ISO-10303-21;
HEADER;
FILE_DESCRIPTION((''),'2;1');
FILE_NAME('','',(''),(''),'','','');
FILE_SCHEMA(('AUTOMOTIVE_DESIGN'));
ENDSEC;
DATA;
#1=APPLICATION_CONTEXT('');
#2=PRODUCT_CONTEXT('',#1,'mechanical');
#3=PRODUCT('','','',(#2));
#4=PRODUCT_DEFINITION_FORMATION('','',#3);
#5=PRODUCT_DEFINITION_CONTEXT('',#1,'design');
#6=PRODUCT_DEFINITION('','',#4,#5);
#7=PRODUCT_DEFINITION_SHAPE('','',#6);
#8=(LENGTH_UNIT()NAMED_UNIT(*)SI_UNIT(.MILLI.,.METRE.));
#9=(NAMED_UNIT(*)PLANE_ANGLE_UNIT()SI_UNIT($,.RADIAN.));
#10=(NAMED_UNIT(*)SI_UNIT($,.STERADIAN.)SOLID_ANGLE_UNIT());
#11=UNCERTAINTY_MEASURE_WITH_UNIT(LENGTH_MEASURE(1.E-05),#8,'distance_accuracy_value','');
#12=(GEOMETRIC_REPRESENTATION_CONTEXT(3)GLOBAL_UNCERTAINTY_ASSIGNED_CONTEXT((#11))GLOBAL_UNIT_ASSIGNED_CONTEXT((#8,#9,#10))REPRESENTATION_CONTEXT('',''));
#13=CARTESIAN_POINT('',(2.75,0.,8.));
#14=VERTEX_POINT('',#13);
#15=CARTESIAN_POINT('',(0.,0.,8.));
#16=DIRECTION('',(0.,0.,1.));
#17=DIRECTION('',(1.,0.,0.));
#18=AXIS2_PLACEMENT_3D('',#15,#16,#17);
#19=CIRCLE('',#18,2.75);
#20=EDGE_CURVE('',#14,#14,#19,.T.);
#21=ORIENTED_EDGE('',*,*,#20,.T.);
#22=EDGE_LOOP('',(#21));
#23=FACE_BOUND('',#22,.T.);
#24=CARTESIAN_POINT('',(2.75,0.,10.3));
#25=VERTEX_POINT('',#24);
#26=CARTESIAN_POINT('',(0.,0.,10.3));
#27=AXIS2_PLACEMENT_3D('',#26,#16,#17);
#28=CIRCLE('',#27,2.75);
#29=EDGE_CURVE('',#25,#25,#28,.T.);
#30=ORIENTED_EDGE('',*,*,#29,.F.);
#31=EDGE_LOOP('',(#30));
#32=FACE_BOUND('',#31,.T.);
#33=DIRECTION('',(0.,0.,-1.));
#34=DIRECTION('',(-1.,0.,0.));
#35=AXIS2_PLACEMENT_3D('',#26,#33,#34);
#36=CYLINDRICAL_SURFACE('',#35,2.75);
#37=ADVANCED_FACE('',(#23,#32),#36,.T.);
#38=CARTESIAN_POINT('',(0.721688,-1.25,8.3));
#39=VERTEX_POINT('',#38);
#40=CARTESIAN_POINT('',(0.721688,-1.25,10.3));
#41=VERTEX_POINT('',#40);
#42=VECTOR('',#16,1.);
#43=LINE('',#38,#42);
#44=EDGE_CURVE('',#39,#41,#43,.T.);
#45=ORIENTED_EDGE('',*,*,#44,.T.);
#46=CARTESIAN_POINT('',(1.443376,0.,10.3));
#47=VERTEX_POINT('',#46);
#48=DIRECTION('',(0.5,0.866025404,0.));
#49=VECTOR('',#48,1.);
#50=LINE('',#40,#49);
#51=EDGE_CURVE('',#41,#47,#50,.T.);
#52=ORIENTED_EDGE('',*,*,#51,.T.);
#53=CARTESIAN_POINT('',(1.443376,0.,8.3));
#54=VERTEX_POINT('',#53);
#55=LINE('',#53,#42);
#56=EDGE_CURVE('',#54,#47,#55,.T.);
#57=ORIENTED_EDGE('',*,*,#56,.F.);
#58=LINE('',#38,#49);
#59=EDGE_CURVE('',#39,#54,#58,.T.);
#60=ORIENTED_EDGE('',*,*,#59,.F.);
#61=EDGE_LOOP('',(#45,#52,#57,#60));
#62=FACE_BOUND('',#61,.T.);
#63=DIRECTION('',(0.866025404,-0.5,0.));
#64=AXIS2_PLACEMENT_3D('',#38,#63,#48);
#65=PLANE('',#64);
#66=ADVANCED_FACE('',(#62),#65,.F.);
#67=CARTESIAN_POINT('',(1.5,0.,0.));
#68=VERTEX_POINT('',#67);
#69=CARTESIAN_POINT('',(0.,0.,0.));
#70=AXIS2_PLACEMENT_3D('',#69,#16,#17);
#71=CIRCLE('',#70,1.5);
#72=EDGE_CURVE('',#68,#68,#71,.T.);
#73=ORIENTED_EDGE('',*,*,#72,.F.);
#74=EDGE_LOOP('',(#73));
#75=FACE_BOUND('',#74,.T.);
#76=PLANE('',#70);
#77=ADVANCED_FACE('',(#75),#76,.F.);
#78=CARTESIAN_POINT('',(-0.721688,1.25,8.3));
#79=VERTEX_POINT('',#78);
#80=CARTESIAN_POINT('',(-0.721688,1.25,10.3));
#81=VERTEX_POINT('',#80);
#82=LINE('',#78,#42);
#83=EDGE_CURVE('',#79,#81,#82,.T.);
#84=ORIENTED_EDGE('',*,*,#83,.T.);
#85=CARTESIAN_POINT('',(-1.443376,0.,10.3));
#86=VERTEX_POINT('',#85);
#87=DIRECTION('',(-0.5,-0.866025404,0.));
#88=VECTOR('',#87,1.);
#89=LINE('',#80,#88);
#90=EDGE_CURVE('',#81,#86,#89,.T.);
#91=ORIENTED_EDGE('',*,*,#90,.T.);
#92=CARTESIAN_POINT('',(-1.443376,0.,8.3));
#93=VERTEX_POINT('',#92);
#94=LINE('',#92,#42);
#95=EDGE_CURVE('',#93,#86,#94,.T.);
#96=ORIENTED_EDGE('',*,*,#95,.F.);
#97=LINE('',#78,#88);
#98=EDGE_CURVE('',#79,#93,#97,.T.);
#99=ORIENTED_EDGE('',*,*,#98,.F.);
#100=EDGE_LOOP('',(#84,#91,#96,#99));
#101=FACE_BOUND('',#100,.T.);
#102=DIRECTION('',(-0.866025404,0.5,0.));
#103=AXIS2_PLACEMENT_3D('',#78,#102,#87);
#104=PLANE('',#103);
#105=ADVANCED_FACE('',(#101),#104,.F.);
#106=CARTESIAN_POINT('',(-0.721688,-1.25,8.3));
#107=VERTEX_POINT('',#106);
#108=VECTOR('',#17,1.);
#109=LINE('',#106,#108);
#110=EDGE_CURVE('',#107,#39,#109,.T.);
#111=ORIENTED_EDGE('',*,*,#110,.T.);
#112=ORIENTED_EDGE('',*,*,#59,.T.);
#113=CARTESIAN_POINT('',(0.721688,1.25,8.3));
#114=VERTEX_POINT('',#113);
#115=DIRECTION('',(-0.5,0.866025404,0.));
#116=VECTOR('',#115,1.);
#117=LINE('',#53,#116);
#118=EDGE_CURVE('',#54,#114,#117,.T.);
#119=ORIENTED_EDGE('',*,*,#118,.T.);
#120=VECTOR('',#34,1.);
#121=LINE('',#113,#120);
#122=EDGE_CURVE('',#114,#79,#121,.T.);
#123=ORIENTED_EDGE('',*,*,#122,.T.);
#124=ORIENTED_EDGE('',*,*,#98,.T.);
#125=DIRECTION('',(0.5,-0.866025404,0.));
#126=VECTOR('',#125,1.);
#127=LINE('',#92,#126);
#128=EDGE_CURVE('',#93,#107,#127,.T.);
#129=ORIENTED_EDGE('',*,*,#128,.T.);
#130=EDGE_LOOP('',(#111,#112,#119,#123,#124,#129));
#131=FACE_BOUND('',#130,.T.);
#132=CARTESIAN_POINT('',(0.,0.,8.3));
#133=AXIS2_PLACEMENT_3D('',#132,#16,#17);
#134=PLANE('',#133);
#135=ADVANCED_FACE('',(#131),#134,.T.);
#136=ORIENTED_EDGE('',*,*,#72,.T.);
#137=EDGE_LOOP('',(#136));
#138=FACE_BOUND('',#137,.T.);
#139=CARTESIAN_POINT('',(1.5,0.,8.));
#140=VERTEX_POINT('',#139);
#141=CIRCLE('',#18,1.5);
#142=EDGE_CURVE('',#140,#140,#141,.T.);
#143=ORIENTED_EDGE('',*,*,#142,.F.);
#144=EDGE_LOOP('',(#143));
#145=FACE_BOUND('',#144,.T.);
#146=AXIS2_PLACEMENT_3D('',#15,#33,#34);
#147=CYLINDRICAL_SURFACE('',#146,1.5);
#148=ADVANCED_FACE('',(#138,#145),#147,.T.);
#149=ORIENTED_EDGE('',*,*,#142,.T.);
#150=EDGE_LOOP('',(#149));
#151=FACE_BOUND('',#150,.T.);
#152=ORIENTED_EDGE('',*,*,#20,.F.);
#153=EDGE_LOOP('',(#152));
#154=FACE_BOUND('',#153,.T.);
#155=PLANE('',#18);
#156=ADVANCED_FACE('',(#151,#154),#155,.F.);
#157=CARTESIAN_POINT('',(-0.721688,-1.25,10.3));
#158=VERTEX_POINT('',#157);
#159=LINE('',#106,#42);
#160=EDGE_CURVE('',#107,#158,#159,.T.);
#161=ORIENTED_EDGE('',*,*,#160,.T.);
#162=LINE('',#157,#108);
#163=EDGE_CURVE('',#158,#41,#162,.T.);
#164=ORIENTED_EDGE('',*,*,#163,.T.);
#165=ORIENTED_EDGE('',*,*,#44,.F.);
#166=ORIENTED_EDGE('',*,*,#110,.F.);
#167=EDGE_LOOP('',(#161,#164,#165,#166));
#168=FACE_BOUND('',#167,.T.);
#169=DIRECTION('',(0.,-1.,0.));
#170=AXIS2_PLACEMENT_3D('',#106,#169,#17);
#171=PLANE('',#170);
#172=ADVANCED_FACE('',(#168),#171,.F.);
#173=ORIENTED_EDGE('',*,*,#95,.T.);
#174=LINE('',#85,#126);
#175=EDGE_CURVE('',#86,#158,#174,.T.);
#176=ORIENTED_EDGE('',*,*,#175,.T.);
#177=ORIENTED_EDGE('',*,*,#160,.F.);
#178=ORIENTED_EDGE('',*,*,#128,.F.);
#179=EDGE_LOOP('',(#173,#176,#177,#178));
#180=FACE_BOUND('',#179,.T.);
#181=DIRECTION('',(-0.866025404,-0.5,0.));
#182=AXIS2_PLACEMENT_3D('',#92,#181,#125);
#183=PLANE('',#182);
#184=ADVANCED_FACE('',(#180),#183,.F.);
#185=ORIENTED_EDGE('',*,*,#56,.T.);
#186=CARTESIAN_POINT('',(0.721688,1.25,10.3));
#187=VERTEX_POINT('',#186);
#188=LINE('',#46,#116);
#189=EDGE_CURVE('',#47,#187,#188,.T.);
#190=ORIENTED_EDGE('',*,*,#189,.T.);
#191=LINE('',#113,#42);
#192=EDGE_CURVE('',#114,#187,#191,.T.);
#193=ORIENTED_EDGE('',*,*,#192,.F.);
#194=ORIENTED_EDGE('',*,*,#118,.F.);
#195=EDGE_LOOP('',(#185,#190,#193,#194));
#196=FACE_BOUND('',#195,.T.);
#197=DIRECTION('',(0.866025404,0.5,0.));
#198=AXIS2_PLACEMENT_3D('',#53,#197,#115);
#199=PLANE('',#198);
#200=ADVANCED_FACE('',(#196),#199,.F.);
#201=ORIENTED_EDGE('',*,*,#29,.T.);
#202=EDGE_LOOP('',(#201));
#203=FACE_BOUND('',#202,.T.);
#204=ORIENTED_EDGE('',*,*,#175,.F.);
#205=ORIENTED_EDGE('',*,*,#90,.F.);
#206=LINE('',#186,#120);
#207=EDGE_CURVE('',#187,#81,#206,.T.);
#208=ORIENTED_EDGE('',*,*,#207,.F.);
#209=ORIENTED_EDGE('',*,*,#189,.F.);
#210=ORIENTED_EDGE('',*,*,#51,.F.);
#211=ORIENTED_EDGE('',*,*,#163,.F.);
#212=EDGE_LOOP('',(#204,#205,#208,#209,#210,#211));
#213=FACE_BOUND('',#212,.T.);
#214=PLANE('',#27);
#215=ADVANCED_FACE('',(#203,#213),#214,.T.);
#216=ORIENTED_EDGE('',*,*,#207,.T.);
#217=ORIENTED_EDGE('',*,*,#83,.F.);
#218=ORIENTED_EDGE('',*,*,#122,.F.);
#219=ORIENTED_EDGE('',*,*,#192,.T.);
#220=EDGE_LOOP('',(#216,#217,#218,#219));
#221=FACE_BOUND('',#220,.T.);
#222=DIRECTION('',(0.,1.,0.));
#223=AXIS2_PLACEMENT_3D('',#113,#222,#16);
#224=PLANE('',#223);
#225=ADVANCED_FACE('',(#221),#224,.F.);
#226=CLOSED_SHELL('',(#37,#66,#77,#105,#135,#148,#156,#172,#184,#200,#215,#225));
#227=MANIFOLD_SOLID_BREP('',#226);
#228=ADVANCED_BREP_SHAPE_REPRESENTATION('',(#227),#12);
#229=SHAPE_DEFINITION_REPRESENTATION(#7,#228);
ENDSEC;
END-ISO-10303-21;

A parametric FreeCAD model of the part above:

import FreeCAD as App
import Part
import Sketcher

V = App.Vector
Q = App.Units.Quantity


def add_polygon(sketch, points):
    """Adds a closed chain of lines whose ends are joined by coincident constraints."""
    first, n = sketch.GeometryCount, len(points)
    for a, b in zip(points, points[1:] + points[:1]):
        sketch.addGeometry(Part.LineSegment(App.Vector(*a, 0), App.Vector(*b, 0)), False)
    for i in range(n):
        sketch.addConstraint(Sketcher.Constraint("Coincident", first + i, 2, first + (i + 1) % n, 1))

doc = App.newDocument("Part")
body = doc.addObject("PartDesign::Body", "Body")

sketch1 = body.newObject("Sketcher::SketchObject", "Sketch")
sketch1.AttachmentSupport = (doc.getObject("XY_Plane"), [""])
sketch1.MapMode = "FlatFace"
sketch1.addGeometry(Part.Circle(V(0, 0, 0), V(0, 0, 1), 1.5), False)
sketch1.addConstraint(Sketcher.Constraint("Coincident", 0, 3, -1, 1))
sketch1.addConstraint(Sketcher.Constraint("Diameter", 0, 3.0))
pad1 = body.newObject("PartDesign::Pad", "Pad")
pad1.Profile = sketch1
pad1.Length = 8

sketch2 = body.newObject("Sketcher::SketchObject", "Sketch001")
sketch2.AttachmentSupport = (doc.getObject("XY_Plane"), [""])
sketch2.MapMode = "FlatFace"
sketch2.AttachmentOffset = App.Placement(V(0, 0, 8), App.Rotation())
sketch2.addGeometry(Part.Circle(V(0, 0, 0), V(0, 0, 1), 2.75), False)
sketch2.addConstraint(Sketcher.Constraint("Coincident", 0, 3, -1, 1))
sketch2.addConstraint(Sketcher.Constraint("Diameter", 0, 5.5))
pad2 = body.newObject("PartDesign::Pad", "Pad001")
pad2.Profile = sketch2
pad2.Length = 2.3

sketch3 = body.newObject("Sketcher::SketchObject", "Sketch002")
sketch3.AttachmentSupport = (doc.getObject("XY_Plane"), [""])
sketch3.MapMode = "FlatFace"
sketch3.AttachmentOffset = App.Placement(V(0, 0, 10.3), App.Rotation())
add_polygon(sketch3, [(1.443376, 0), (0.721688, 1.25), (-0.721688, 1.25), (-1.443376, 0), (-0.721688, -1.25), (0.721688, -1.25)])
sketch3.addConstraint(Sketcher.Constraint("Horizontal", 1))
sketch3.addConstraint(Sketcher.Constraint("Horizontal", 4))
sketch3.addConstraint(Sketcher.Constraint("Symmetric", 0, 2, 3, 2, -1, 1))
sketch3.addConstraint(Sketcher.Constraint("Symmetric", 2, 2, 5, 2, -1, 1))
sketch3.addConstraint(Sketcher.Constraint("PointOnObject", 2, 2, -1))
sketch3.addConstraint(Sketcher.Constraint("Parallel", 2, 5))
sketch3.addConstraint(Sketcher.Constraint("Vertical", 1, 2, 3, 2))
sketch3.addConstraint(Sketcher.Constraint("Angle", 0, Q("120 deg")))
sketch3.addConstraint(Sketcher.Constraint("DistanceY", 3, 2, 1, 2, 2.5))
sketch3.addConstraint(Sketcher.Constraint("DistanceX", 1, 2, 1, 1, 1.443376))
pocket1 = body.newObject("PartDesign::Pocket", "Pocket")
pocket1.Profile = sketch3
pocket1.Length = 2

doc.recompute()
